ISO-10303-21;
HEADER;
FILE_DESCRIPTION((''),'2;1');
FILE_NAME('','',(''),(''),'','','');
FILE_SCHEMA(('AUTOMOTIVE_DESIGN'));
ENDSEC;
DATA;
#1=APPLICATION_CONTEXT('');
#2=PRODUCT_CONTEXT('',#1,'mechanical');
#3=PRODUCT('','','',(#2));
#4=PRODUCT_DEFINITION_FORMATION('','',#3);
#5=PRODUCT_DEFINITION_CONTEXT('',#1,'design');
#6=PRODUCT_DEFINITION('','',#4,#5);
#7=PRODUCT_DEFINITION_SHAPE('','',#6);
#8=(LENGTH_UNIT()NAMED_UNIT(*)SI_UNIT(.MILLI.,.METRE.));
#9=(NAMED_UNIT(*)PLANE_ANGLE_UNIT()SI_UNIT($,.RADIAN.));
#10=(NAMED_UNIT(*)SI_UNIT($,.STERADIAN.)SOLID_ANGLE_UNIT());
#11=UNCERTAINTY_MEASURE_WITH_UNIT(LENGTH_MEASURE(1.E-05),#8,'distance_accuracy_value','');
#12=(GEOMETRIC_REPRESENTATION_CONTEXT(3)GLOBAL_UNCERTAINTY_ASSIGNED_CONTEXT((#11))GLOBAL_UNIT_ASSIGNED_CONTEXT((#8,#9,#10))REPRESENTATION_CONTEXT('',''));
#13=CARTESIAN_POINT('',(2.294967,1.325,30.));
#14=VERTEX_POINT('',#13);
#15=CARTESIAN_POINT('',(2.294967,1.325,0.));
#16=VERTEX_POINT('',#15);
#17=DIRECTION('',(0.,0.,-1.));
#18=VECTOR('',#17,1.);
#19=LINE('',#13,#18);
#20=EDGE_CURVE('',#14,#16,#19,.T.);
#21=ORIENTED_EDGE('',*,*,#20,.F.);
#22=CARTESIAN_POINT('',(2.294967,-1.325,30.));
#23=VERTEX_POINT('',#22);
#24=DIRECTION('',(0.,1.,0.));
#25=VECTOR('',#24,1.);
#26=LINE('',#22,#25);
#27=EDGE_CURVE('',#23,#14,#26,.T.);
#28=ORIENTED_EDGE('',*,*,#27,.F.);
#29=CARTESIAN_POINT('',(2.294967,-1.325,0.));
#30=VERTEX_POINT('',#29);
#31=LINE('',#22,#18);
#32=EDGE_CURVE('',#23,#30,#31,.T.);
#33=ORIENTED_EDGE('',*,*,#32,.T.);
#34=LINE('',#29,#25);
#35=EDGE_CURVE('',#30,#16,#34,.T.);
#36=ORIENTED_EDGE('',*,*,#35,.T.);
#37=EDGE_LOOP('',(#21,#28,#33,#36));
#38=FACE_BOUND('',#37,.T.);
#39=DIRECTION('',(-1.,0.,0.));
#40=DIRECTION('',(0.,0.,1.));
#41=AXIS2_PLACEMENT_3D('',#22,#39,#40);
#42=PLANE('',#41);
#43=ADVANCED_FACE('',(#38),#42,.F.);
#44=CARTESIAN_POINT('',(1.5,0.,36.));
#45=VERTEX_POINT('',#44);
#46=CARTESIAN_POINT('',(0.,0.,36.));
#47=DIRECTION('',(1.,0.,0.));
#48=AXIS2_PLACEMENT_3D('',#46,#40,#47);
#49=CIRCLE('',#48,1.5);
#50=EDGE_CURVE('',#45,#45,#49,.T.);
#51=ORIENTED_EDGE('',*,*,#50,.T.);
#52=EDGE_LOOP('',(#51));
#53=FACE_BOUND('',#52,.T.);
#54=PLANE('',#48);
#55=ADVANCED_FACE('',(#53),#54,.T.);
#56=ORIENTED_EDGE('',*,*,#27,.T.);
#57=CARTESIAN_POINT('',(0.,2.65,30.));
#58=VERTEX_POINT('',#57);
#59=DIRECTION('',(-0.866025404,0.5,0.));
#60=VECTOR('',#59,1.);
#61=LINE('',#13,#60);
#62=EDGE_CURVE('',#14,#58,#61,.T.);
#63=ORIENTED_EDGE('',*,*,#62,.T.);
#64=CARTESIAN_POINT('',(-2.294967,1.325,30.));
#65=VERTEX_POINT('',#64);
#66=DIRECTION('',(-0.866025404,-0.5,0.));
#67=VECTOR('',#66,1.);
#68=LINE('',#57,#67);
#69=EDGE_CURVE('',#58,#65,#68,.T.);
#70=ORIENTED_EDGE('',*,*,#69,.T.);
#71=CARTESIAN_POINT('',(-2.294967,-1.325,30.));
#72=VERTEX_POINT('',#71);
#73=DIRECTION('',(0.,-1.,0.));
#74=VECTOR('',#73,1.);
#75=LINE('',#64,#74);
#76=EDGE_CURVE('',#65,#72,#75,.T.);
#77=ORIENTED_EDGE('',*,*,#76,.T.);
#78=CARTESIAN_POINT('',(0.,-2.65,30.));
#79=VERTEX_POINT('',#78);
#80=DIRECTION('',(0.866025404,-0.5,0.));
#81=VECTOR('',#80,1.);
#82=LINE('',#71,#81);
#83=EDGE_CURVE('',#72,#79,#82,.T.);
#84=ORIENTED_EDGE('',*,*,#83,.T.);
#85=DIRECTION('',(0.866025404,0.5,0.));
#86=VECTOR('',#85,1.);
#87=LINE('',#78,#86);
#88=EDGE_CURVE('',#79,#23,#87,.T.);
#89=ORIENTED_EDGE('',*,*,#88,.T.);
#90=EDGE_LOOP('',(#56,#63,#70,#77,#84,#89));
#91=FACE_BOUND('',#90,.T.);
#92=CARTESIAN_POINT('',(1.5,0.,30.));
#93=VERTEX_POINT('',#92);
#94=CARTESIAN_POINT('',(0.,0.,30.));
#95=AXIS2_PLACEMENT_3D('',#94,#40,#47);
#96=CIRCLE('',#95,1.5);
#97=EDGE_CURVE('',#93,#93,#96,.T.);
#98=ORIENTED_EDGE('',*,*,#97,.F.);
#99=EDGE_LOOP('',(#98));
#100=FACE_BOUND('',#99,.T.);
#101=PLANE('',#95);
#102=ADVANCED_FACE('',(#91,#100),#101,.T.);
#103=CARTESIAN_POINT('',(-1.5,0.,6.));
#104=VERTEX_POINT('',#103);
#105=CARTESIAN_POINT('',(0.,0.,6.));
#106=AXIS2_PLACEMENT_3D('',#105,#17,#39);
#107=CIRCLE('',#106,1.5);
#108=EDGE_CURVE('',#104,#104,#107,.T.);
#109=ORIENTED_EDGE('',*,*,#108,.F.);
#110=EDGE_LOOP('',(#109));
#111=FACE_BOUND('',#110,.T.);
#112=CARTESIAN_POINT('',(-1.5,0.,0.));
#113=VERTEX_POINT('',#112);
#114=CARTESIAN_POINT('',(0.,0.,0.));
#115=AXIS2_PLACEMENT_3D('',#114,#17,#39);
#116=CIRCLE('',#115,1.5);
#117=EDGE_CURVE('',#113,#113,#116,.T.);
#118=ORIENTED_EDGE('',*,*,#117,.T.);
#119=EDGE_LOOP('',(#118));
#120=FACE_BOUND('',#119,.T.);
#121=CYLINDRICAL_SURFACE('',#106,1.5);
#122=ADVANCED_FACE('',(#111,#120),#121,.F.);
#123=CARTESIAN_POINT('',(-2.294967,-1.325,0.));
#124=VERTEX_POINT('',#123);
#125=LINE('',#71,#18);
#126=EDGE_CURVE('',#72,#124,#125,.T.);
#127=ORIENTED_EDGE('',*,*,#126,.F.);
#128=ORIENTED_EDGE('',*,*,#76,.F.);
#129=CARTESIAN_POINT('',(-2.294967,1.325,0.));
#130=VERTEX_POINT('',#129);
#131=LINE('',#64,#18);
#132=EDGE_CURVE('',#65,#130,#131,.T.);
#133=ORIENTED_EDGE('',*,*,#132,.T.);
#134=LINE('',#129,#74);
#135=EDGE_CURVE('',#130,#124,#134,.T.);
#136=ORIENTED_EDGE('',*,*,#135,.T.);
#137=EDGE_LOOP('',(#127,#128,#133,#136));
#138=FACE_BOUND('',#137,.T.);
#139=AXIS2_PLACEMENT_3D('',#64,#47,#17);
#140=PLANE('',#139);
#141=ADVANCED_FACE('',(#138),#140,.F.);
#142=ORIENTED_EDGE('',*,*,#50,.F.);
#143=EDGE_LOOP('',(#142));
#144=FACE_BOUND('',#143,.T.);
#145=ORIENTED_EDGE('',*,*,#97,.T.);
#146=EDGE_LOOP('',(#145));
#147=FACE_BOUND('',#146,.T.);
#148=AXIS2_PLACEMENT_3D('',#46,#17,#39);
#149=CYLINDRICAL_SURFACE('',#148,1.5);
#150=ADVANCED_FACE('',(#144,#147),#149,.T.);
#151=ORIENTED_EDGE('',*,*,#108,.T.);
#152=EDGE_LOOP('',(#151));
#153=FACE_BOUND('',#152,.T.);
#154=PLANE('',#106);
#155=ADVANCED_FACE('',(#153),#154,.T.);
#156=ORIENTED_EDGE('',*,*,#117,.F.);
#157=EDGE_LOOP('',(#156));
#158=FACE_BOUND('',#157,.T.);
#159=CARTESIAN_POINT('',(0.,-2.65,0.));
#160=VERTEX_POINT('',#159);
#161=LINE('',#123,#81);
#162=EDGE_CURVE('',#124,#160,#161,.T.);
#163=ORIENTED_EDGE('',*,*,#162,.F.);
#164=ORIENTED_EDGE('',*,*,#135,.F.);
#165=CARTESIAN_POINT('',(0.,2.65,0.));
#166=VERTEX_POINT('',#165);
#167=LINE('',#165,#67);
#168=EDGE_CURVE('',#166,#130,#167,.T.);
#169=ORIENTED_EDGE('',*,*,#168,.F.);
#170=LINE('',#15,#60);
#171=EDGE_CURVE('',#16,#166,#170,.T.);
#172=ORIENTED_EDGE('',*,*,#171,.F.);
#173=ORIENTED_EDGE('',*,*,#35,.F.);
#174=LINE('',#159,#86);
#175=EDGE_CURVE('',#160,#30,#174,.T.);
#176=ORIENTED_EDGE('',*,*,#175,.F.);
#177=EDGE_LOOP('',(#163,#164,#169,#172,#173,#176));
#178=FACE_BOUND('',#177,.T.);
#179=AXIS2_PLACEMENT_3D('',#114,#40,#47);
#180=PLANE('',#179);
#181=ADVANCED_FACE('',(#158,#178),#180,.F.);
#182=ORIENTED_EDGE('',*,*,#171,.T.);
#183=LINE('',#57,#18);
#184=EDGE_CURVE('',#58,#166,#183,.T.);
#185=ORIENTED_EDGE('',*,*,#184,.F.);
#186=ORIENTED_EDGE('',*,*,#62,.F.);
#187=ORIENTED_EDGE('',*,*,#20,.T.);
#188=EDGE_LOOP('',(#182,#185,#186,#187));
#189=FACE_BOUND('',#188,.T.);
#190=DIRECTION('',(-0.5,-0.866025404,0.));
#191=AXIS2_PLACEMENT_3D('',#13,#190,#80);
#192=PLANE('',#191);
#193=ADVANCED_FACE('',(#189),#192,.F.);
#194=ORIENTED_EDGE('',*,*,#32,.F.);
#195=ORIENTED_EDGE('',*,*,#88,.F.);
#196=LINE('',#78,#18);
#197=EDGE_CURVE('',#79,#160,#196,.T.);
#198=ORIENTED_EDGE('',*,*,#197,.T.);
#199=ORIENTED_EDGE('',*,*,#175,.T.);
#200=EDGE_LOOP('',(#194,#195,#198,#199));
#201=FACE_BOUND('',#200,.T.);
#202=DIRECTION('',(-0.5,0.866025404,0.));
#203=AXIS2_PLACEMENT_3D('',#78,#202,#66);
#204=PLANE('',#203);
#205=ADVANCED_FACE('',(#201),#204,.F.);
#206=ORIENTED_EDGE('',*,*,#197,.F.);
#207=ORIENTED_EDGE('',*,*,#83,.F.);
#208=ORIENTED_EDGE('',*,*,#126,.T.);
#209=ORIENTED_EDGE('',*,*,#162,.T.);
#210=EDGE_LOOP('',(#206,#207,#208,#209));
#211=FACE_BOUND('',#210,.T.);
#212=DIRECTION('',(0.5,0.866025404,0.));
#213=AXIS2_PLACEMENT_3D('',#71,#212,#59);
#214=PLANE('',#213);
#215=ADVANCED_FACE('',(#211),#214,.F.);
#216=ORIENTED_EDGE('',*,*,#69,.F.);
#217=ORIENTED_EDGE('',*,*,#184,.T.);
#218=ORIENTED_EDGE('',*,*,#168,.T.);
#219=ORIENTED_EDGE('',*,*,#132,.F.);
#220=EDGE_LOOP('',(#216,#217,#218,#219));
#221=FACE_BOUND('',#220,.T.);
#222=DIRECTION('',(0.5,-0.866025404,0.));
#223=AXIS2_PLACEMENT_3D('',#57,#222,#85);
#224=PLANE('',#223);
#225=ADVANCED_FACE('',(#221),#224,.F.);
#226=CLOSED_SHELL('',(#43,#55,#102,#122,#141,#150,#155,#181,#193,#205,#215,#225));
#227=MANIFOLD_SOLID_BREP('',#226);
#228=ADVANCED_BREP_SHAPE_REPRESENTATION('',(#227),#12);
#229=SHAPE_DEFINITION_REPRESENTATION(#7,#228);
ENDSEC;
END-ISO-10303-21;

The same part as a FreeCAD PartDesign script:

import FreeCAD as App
import Part
import Sketcher

V = App.Vector
Q = App.Units.Quantity

doc = App.newDocument("Part")
body = doc.addObject("PartDesign::Body", "Body")

# Sketch on XY plane
sketch1 = doc.addObject("Sketcher::SketchObject", "Sketch")
body.addObject(sketch1)
sketch1.AttachmentSupport = (doc.XY_Plane, [""])
sketch1.MapMode = "FlatFace"
sketch1.addGeometry([
    Part.LineSegment(V(0, 2.65, 0), V(-2.294967, 1.325, 0)),  # 0
    Part.LineSegment(V(-2.294967, 1.325, 0), V(-2.294967, -1.325, 0)),  # 1
    Part.LineSegment(V(-2.294967, -1.325, 0), V(0, -2.65, 0)),  # 2
    Part.LineSegment(V(0, -2.65, 0), V(2.294967, -1.325, 0)),  # 3
    Part.LineSegment(V(2.294967, -1.325, 0), V(2.294967, 1.325, 0)),  # 4
    Part.LineSegment(V(2.294967, 1.325, 0), V(0, 2.65, 0)),  # 5
], False)
sketch1.addConstraint([
    Sketcher.Constraint("Coincident", 0, 2, 1, 1),
    Sketcher.Constraint("Coincident", 1, 2, 2, 1),
    Sketcher.Constraint("Coincident", 2, 2, 3, 1),
    Sketcher.Constraint("Coincident", 3, 2, 4, 1),
    Sketcher.Constraint("Coincident", 4, 2, 5, 1),
    Sketcher.Constraint("Coincident", 5, 2, 0, 1),
    Sketcher.Constraint("Vertical", 1),
    Sketcher.Constraint("Vertical", 4),
    Sketcher.Constraint("Symmetric", 0, 2, 3, 2, -1, 1),
    Sketcher.Constraint("Symmetric", 2, 2, 5, 2, -1, 1),
    Sketcher.Constraint("PointOnObject", 2, 2, -2),
    Sketcher.Constraint("Parallel", 2, 5),
    Sketcher.Constraint("Horizontal", 1, 2, 3, 2),
    Sketcher.Constraint("Angle", 0, Q("-150 deg")),
    Sketcher.Constraint("DistanceY", 1, 2, 1, 1, Q("2.65 mm")),
    Sketcher.Constraint("DistanceY", 2, 2, 5, 2, Q("5.3 mm")),
])
pad1 = doc.addObject("PartDesign::Pad", "Pad")
body.addObject(pad1)
pad1.Profile = sketch1
pad1.Length = 30

# Sketch on XY plane
sketch2 = doc.addObject("Sketcher::SketchObject", "Sketch001")
body.addObject(sketch2)
sketch2.AttachmentSupport = (doc.XY_Plane, [""])
sketch2.MapMode = "FlatFace"
sketch2.addGeometry(Part.Circle(V(0, 0, 0), V(0, 0, 1), 1.5), False)
sketch2.addConstraint([
    Sketcher.Constraint("Coincident", 0, 3, -1, 1),
    Sketcher.Constraint("Diameter", 0, Q("3 mm")),
])
pocket1 = doc.addObject("PartDesign::Pocket", "Pocket")
body.addObject(pocket1)
pocket1.Profile = sketch2
pocket1.Length = 6
pocket1.Reversed = True

# Sketch on XY plane
sketch3 = doc.addObject("Sketcher::SketchObject", "Sketch002")
body.addObject(sketch3)
sketch3.AttachmentSupport = (doc.XY_Plane, [""])
sketch3.MapMode = "FlatFace"
sketch3.AttachmentOffset = App.Placement(V(0, 0, 30), App.Rotation())
sketch3.addGeometry(Part.Circle(V(0, 0, 0), V(0, 0, 1), 1.5), False)
sketch3.addConstraint([
    Sketcher.Constraint("Coincident", 0, 3, -1, 1),
    Sketcher.Constraint("Diameter", 0, Q("3 mm")),
])
pad2 = doc.addObject("PartDesign::Pad", "Pad001")
body.addObject(pad2)
pad2.Profile = sketch3
pad2.Length = 6

doc.recompute()
